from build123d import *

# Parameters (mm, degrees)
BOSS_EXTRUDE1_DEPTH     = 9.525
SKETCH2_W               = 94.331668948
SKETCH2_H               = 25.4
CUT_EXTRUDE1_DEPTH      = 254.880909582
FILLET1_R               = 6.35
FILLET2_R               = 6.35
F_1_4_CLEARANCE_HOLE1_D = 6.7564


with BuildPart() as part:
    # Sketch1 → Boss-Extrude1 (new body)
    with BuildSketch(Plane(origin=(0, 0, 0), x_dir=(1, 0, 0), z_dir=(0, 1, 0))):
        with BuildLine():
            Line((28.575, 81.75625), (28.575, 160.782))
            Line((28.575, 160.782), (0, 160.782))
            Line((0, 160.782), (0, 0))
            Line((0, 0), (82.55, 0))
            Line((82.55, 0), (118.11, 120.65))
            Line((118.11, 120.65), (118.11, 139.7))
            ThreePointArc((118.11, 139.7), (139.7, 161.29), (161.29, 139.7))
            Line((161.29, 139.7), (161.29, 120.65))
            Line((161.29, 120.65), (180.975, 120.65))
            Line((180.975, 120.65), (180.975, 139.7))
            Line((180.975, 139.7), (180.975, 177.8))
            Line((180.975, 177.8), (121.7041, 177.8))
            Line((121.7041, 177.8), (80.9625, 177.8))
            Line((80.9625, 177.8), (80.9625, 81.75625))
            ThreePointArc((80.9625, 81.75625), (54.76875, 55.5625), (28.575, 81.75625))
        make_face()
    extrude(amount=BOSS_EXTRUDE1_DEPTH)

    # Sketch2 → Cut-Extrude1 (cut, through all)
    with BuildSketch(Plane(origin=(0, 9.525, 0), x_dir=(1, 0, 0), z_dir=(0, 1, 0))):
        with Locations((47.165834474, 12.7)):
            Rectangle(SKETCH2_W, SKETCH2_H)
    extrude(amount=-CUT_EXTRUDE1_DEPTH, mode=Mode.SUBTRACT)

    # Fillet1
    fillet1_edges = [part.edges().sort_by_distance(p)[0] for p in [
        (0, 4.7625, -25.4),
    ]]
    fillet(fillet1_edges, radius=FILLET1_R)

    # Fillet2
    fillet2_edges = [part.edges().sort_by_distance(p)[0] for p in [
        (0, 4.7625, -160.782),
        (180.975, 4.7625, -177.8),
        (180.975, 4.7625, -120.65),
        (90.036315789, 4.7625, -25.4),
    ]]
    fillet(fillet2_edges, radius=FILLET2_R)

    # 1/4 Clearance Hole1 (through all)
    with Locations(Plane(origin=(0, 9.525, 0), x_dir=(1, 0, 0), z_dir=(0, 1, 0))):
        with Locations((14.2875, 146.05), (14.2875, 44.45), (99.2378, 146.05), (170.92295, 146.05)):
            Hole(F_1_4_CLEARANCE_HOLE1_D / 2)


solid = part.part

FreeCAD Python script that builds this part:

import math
import FreeCAD as App
import Part
import Sketcher
Q = App.Units.Quantity


def edges_at(feature, points):
    """Names of the edges that pass closest to the given points."""
    edges = feature.Shape.Edges
    near = lambda p: min(range(len(edges)), key=lambda i: edges[i].distToShape(Part.Vertex(*p))[0])
    return sorted({f"Edge{near(p) + 1}" for p in points})

doc = App.newDocument("Part")
body = doc.addObject("PartDesign::Body", "Body")

# Sketch on XZ plane
sketch1 = body.newObject("Sketcher::SketchObject", "Sketch")
sketch1.AttachmentSupport = (doc.getObject("XZ_Plane"), [""])
sketch1.MapMode = "FlatFace"
sketch1.addGeometry([
    Part.LineSegment(App.Vector(29, -82, 0), App.Vector(29, -161, 0)),  # 0
    Part.LineSegment(App.Vector(29, -161, 0), App.Vector(0, -161, 0)),  # 1
    Part.LineSegment(App.Vector(0, -161, 0), App.Vector(0, 0, 0)),  # 2
    Part.LineSegment(App.Vector(0, 0, 0), App.Vector(83, 0, 0)),  # 3
    Part.LineSegment(App.Vector(83, 0, 0), App.Vector(118, -121, 0)),  # 4
    Part.LineSegment(App.Vector(118, -121, 0), App.Vector(118, -140, 0)),  # 5
    Part.ArcOfCircle(Part.Circle(App.Vector(140, -140, 0), App.Vector(0, 0, 1), 22), math.radians(180), math.radians(360)),  # 6
    Part.LineSegment(App.Vector(161, -140, 0), App.Vector(161, -121, 0)),  # 7
    Part.LineSegment(App.Vector(161, -121, 0), App.Vector(181, -121, 0)),  # 8
    Part.LineSegment(App.Vector(181, -121, 0), App.Vector(181, -178, 0)),  # 9
    Part.LineSegment(App.Vector(181, -178, 0), App.Vector(81, -178, 0)),  # 10
    Part.LineSegment(App.Vector(81, -178, 0), App.Vector(81, -82, 0)),  # 11
    Part.ArcOfCircle(Part.Circle(App.Vector(55, -82, 0), App.Vector(0, 0, 1), 26), math.radians(0), math.radians(180)),  # 12
], False)
sketch1.addConstraint([
    Sketcher.Constraint("Coincident", 0, 2, 1, 1),
    Sketcher.Constraint("Coincident", 1, 2, 2, 1),
    Sketcher.Constraint("Coincident", 2, 2, 3, 1),
    Sketcher.Constraint("Coincident", 3, 2, 4, 1),
    Sketcher.Constraint("Coincident", 4, 2, 5, 1),
    Sketcher.Constraint("Tangent", 5, 2, 6, 1),
    Sketcher.Constraint("Tangent", 6, 2, 7, 1),
    Sketcher.Constraint("Coincident", 7, 2, 8, 1),
    Sketcher.Constraint("Coincident", 8, 2, 9, 1),
    Sketcher.Constraint("Coincident", 9, 2, 10, 1),
    Sketcher.Constraint("Coincident", 10, 2, 11, 1),
    Sketcher.Constraint("Tangent", 11, 2, 12, 1),
    Sketcher.Constraint("Tangent", 12, 2, 0, 1),
    Sketcher.Constraint("Vertical", 0),
    Sketcher.Constraint("Horizontal", 1),
    Sketcher.Constraint("Vertical", 2),
    Sketcher.Constraint("Horizontal", 3),
    Sketcher.Constraint("Vertical", 5),
    Sketcher.Constraint("Vertical", 7),
    Sketcher.Constraint("Horizontal", 8),
    Sketcher.Constraint("Vertical", 9),
    Sketcher.Constraint("Horizontal", 10),
    Sketcher.Constraint("Vertical", 11),
    Sketcher.Constraint("Coincident", 2, 2, -1, 1),
    Sketcher.Constraint("Horizontal", 4, 2, 7, 2),
    Sketcher.Constraint("Radius", 6, Q("0.85 in")),
    Sketcher.Constraint("DistanceY", 9, 2, -1, 1, Q("7 in")),
    Sketcher.Constraint("Radius", 12, Q("1.03125 in")),
    Sketcher.Constraint("DistanceX", 3, 1, 3, 2, Q("3.25 in")),
    Sketcher.Constraint("DistanceY", 2, 1, 2, 2, Q("6.33 in")),
    Sketcher.Constraint("DistanceY", 5, 2, 5, 1, Q("0.75 in")),
    Sketcher.Constraint("DistanceY", 9, 2, 9, 1, Q("2.25 in")),
    Sketcher.Constraint("DistanceX", -1, 1, 6, 3, Q("5.5 in")),
    Sketcher.Constraint("DistanceX", 1, 2, 1, 1, Q("1.125 in")),
    Sketcher.Constraint("DistanceX", 8, 1, 8, 2, Q("0.775 in")),
    Sketcher.Constraint("DistanceY", 11, 1, 11, 2, Q("3.78125 in")),
])
pad1 = body.newObject("PartDesign::Pad", "Pad")
pad1.Profile = sketch1
pad1.Length = Q("0.375 in")
pad1.Reversed = True

# Sketch on XZ plane
sketch2 = body.newObject("Sketcher::SketchObject", "Sketch001")
sketch2.AttachmentSupport = (doc.getObject("XZ_Plane"), [""])
sketch2.MapMode = "FlatFace"
sketch2.AttachmentOffset = App.Placement(App.Vector(0, 0, -0.375 * 25.4), App.Rotation())
sketch2.addGeometry([
    Part.LineSegment(App.Vector(0, -25, 0), App.Vector(0, 0, 0)),
    Part.LineSegment(App.Vector(0, 0, 0), App.Vector(94, 0, 0)),
    Part.LineSegment(App.Vector(94, 0, 0), App.Vector(94, -25, 0)),
    Part.LineSegment(App.Vector(94, -25, 0), App.Vector(0, -25, 0)),
], False)
sketch2.addConstraint([
    Sketcher.Constraint("Coincident", 0, 2, 1, 1),
    Sketcher.Constraint("Coincident", 1, 2, 2, 1),
    Sketcher.Constraint("Coincident", 2, 2, 3, 1),
    Sketcher.Constraint("Coincident", 3, 2, 0, 1),
    Sketcher.Constraint("Vertical", 0),
    Sketcher.Constraint("Horizontal", 1),
    Sketcher.Constraint("Vertical", 2),
    Sketcher.Constraint("Horizontal", 3),
    Sketcher.Constraint("Coincident", 0, 2, -1, 1),
    Sketcher.Constraint("DistanceY", 0, 1, 0, 2, Q("1 in")),
    Sketcher.Constraint("DistanceX", 1, 1, 1, 2, 94.331669),
])
pocket1 = body.newObject("PartDesign::Pocket", "Pocket")
pocket1.Profile = sketch2
pocket1.Type = "ThroughAll"
pocket1.Reversed = True
doc.recompute()

fillet = body.newObject("PartDesign::Fillet", "Fillet")
fillet.Base = (pocket1, edges_at(pocket1, [(0, 4.763, -25.4)]))
fillet.Radius = Q("0.25 in")
doc.recompute()

fillet2 = body.newObject("PartDesign::Fillet", "Fillet001")
fillet2.Base = (fillet, edges_at(fillet, [
    (0, 4.763, -160.782),
    (180.975, 4.763, -177.8),
    (180.975, 4.763, -120.65),
    (90.036, 4.763, -25.4),
]))
fillet2.Radius = Q("0.25 in")

# Sketch on XZ plane
sketch3 = body.newObject("Sketcher::SketchObject", "Sketch002")
sketch3.AttachmentSupport = (doc.getObject("XZ_Plane"), [""])
sketch3.MapMode = "FlatFace"
sketch3.AttachmentOffset = App.Placement(App.Vector(0, 0, -0.375 * 25.4), App.Rotation())
sketch3.addGeometry([
    Part.Circle(App.Vector(14.3, -146.1, 0), App.Vector(0, 0, 1), 3.4),
    Part.Circle(App.Vector(14.3, -44.5, 0), App.Vector(0, 0, 1), 3.4),
    Part.Circle(App.Vector(99.2, -146.1, 0), App.Vector(0, 0, 1), 3.4),
    Part.Circle(App.Vector(170.9, -146.1, 0), App.Vector(0, 0, 1), 3.4),
], False)
sketch3.addConstraint([
    Sketcher.Constraint("Equal", 0, 1),
    Sketcher.Constraint("Equal", 1, 2),
    Sketcher.Constraint("Equal", 2, 3),
    Sketcher.Constraint("Horizontal", 0, 3, 2, 3),
    Sketcher.Constraint("Horizontal", 2, 3, 3, 3),
    Sketcher.Constraint("Vertical", 0, 3, 1, 3),
    Sketcher.Constraint("Diameter", 0, Q("0.266 in")),
    Sketcher.Constraint("DistanceY", 0, 3, 1, 3, Q("4 in")),
    Sketcher.Constraint("DistanceY", 0, 3, -1, 1, Q("5.75 in")),
    Sketcher.Constraint("DistanceX", -1, 1, 0, 3, Q("0.5625 in")),
    Sketcher.Constraint("DistanceX", -1, 1, 2, 3, Q("3.907 in")),
    Sketcher.Constraint("DistanceX", -1, 1, 3, 3, 170.92295),
])
doc.recompute()
hole = body.newObject("PartDesign::Hole", "Hole")
hole.Profile = sketch3
hole.ThreadType = "None"
hole.Diameter = Q("0.266 in")
hole.DepthType = "ThroughAll"
hole.Reversed = True

doc.recompute()
